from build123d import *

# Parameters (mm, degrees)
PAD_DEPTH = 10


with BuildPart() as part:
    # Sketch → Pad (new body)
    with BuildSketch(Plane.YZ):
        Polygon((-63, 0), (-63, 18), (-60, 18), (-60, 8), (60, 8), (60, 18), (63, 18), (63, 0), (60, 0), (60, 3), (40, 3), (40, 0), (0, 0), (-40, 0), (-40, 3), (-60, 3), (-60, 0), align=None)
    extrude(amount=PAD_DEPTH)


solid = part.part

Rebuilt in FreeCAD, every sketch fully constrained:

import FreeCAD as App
import Part
import Sketcher
Q = App.Units.Quantity

doc = App.newDocument("Part")
params = doc.addObject("Spreadsheet::Sheet", "Params")
for row, (alias, value) in enumerate([
    ("sketch1_width", "3 mm"),
    ("sketch1_width2", "20 mm"),
    ("sketch1_width3", "80 mm"),
    ("sketch1_height", "18 mm"),
    ("sketch1_height2", "10 mm"),
    ("pad1_length", "10 mm"),
], start=1):
    params.set(f"A{row}", alias)
    params.set(f"B{row}", "=" + value)
    params.setAlias(f"B{row}", alias)

body = doc.addObject("PartDesign::Body", "Body")

sketch1 = body.newObject("Sketcher::SketchObject", "Sketch")
sketch1.AttachmentSupport = (doc.getObject("YZ_Plane"), [""])
sketch1.MapMode = "FlatFace"
sketch1.addGeometry([
    Part.LineSegment(App.Vector(-63, 18, 0), App.Vector(-63, 0, 0)),
    Part.LineSegment(App.Vector(-63, 0, 0), App.Vector(-60, 0, 0)),
    Part.LineSegment(App.Vector(-60, 0, 0), App.Vector(-60, 3, 0)),
    Part.LineSegment(App.Vector(-60, 3, 0), App.Vector(-40, 3, 0)),
    Part.LineSegment(App.Vector(-40, 3, 0), App.Vector(-40, 0, 0)),
    Part.LineSegment(App.Vector(-40, 0, 0), App.Vector(40, 0, 0)),
    Part.LineSegment(App.Vector(40, 0, 0), App.Vector(40, 3, 0)),
    Part.LineSegment(App.Vector(40, 3, 0), App.Vector(60, 3, 0)),
    Part.LineSegment(App.Vector(60, 3, 0), App.Vector(60, 0, 0)),
    Part.LineSegment(App.Vector(60, 0, 0), App.Vector(63, 0, 0)),
    Part.LineSegment(App.Vector(63, 0, 0), App.Vector(63, 18, 0)),
    Part.LineSegment(App.Vector(63, 18, 0), App.Vector(60, 18, 0)),
    Part.LineSegment(App.Vector(60, 18, 0), App.Vector(60, 8, 0)),
    Part.LineSegment(App.Vector(60, 8, 0), App.Vector(-60, 8, 0)),
    Part.LineSegment(App.Vector(-60, 8, 0), App.Vector(-60, 18, 0)),
    Part.LineSegment(App.Vector(-60, 18, 0), App.Vector(-63, 18, 0)),
], False)
sketch1.addConstraint([
    Sketcher.Constraint("Coincident", 0, 2, 1, 1),
    Sketcher.Constraint("Coincident", 1, 2, 2, 1),
    Sketcher.Constraint("Coincident", 2, 2, 3, 1),
    Sketcher.Constraint("Coincident", 3, 2, 4, 1),
    Sketcher.Constraint("Coincident", 4, 2, 5, 1),
    Sketcher.Constraint("Coincident", 5, 2, 6, 1),
    Sketcher.Constraint("Coincident", 6, 2, 7, 1),
    Sketcher.Constraint("Coincident", 7, 2, 8, 1),
    Sketcher.Constraint("Coincident", 8, 2, 9, 1),
    Sketcher.Constraint("Coincident", 9, 2, 10, 1),
    Sketcher.Constraint("Coincident", 10, 2, 11, 1),
    Sketcher.Constraint("Coincident", 11, 2, 12, 1),
    Sketcher.Constraint("Coincident", 12, 2, 13, 1),
    Sketcher.Constraint("Coincident", 13, 2, 14, 1),
    Sketcher.Constraint("Coincident", 14, 2, 15, 1),
    Sketcher.Constraint("Coincident", 15, 2, 0, 1),
    Sketcher.Constraint("Vertical", 0),
    Sketcher.Constraint("Horizontal", 1),
    Sketcher.Constraint("Vertical", 2),
    Sketcher.Constraint("Horizontal", 3),
    Sketcher.Constraint("Vertical", 4),
    Sketcher.Constraint("Horizontal", 5),
    Sketcher.Constraint("Vertical", 6),
    Sketcher.Constraint("Horizontal", 7),
    Sketcher.Constraint("Vertical", 8),
    Sketcher.Constraint("Horizontal", 9),
    Sketcher.Constraint("Vertical", 10),
    Sketcher.Constraint("Horizontal", 11),
    Sketcher.Constraint("Vertical", 12),
    Sketcher.Constraint("Horizontal", 13),
    Sketcher.Constraint("Vertical", 14),
    Sketcher.Constraint("Horizontal", 15),
    Sketcher.Constraint("Symmetric", 4, 2, 5, 2, -1, 1),
    Sketcher.Constraint("Symmetric", 1, 2, 8, 2, -1, 1),
    Sketcher.Constraint("Symmetric", 0, 2, 9, 2, -2),
    Sketcher.Constraint("Symmetric", 11, 2, 14, 2, -2),
    Sketcher.Constraint("Horizontal", 3, 2, 6, 2),
    Sketcher.Constraint("Vertical", 8, 2, 11, 2),
    Sketcher.Constraint("Equal", 15, 2),
    Sketcher.Constraint("DistanceX", 1, 1, 1, 2, Q("3 mm")),
    Sketcher.Constraint("DistanceX", 3, 1, 3, 2, Q("20 mm")),
    Sketcher.Constraint("DistanceX", 5, 1, 5, 2, Q("80 mm")),
    Sketcher.Constraint("DistanceY", 0, 2, 0, 1, Q("18 mm")),
    Sketcher.Constraint("DistanceY", 12, 2, 12, 1, Q("10 mm")),
])
sketch1.setExpression("Constraints[39]", "Params.sketch1_width")
sketch1.setExpression("Constraints[40]", "Params.sketch1_width2")
sketch1.setExpression("Constraints[41]", "Params.sketch1_width3")
sketch1.setExpression("Constraints[42]", "Params.sketch1_height")
sketch1.setExpression("Constraints[43]", "Params.sketch1_height2")
pad1 = body.newObject("PartDesign::Pad", "Pad")
pad1.Profile = sketch1
pad1.setExpression("Length", "Params.pad1_length")

doc.recompute()
